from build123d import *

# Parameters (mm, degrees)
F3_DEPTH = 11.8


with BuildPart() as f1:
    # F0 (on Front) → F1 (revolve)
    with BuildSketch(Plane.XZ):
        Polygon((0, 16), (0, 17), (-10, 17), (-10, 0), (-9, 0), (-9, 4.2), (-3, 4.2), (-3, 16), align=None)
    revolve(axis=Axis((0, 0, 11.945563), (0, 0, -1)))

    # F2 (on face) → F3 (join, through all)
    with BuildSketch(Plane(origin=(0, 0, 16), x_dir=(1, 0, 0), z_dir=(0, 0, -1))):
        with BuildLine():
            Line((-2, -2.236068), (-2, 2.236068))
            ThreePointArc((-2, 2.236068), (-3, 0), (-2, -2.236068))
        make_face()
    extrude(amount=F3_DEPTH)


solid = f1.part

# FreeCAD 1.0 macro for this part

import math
import FreeCAD as App
import Part
import Sketcher
from FreeCAD import Vector
Q = App.Units.Quantity


def add_polygon(sketch, points):
    """Adds a closed chain of lines whose ends are joined by coincident constraints."""
    first, n = sketch.GeometryCount, len(points)
    for a, b in zip(points, points[1:] + points[:1]):
        sketch.addGeometry(Part.LineSegment(App.Vector(*a, 0), App.Vector(*b, 0)), False)
    for i in range(n):
        sketch.addConstraint(Sketcher.Constraint("Coincident", first + i, 2, first + (i + 1) % n, 1))

doc = App.newDocument("Part")
body = doc.addObject("PartDesign::Body", "Body")

sketch1 = doc.addObject("Sketcher::SketchObject", "Sketch")
body.addObject(sketch1)
sketch1.AttachmentSupport = (doc.XZ_Plane, [""])
sketch1.MapMode = "FlatFace"
add_polygon(sketch1, [(0, 16), (0, 17), (-10, 17), (-10, 0), (-9, 0), (-9, 4.2), (-3, 4.2), (-3, 16)])
sketch1.addConstraint([
    Sketcher.Constraint("Vertical", 0),
    Sketcher.Constraint("Horizontal", 1),
    Sketcher.Constraint("Vertical", 2),
    Sketcher.Constraint("Horizontal", 3),
    Sketcher.Constraint("Vertical", 4),
    Sketcher.Constraint("Horizontal", 5),
    Sketcher.Constraint("Vertical", 6),
    Sketcher.Constraint("Horizontal", 7),
    Sketcher.Constraint("PointOnObject", 0, 2, -2),
    Sketcher.Constraint("PointOnObject", 2, 2, -1),
    Sketcher.Constraint("Equal", 3, 0),
    Sketcher.Constraint("DistanceX", 1, 2, 1, 1, Q("10 mm")),
    Sketcher.Constraint("DistanceX", 3, 1, 3, 2, Q("1 mm")),
    Sketcher.Constraint("DistanceX", 5, 1, 5, 2, Q("6 mm")),
    Sketcher.Constraint("DistanceY", 2, 2, 2, 1, Q("17 mm")),
    Sketcher.Constraint("DistanceY", 4, 1, 4, 2, Q("4.2 mm")),
])
revolution = doc.addObject("PartDesign::Revolution", "Revolution")
body.addObject(revolution)
revolution.Profile = sketch1
revolution.ReferenceAxis = (sketch1, ["V_Axis"])
revolution.Angle = 360

sketch2 = doc.addObject("Sketcher::SketchObject", "Sketch001")
body.addObject(sketch2)
sketch2.AttachmentSupport = (doc.XY_Plane, [""])
sketch2.MapMode = "FlatFace"
sketch2.AttachmentOffset = App.Placement(Vector(0, 0, 16), App.Rotation())
sketch2.addGeometry([
    Part.LineSegment(Vector(-2, 2.236068, 0), Vector(-2, -2.236068, 0)),
    Part.ArcOfCircle(Part.Circle(Vector(0, 0, 0), Vector(0, 0, 1), 3), math.radians(131.810315), math.radians(228.189685)),
], False)
sketch2.addConstraint([
    Sketcher.Constraint("Coincident", 0, 1, 1, 1),
    Sketcher.Constraint("Coincident", 1, 2, 0, 2),
    Sketcher.Constraint("Vertical", 0),
    Sketcher.Constraint("Coincident", 1, 3, -1, 1),
    Sketcher.Constraint("Radius", 1, Q("3 mm")),
    Sketcher.Constraint("DistanceX", 0, 1, -1, 1, Q("2 mm")),
])
pad1 = doc.addObject("PartDesign::Pad", "Pad")
body.addObject(pad1)
pad1.Profile = sketch2
pad1.Length = 11.8
pad1.Reversed = True

doc.recompute()
